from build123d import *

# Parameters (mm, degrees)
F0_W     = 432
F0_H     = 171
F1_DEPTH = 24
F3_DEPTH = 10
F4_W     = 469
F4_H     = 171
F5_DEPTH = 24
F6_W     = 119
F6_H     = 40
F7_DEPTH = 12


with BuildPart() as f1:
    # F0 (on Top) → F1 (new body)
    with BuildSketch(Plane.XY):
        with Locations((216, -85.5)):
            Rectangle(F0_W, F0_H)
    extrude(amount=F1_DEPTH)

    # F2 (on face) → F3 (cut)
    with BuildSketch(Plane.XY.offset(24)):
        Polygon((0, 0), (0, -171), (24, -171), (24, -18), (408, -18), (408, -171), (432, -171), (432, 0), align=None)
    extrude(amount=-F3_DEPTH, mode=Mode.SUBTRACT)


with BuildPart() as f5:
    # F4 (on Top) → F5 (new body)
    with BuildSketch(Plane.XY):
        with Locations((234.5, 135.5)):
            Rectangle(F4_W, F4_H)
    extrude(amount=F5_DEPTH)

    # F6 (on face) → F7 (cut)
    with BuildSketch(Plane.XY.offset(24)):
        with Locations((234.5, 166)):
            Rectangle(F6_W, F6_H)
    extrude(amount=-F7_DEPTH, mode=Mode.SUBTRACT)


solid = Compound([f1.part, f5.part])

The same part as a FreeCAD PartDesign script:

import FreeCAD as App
import Part
import Sketcher
from FreeCAD import Vector


def add_polygon(sketch, points):
    """Adds a closed chain of lines whose ends are joined by coincident constraints."""
    first, n = sketch.GeometryCount, len(points)
    for a, b in zip(points, points[1:] + points[:1]):
        sketch.addGeometry(Part.LineSegment(App.Vector(*a, 0), App.Vector(*b, 0)), False)
    for i in range(n):
        sketch.addConstraint(Sketcher.Constraint("Coincident", first + i, 2, first + (i + 1) % n, 1))

doc = App.newDocument("Part")
body = doc.addObject("PartDesign::Body", "Body")

# Sketch on XY plane
sketch1 = doc.addObject("Sketcher::SketchObject", "Sketch")
body.addObject(sketch1)
sketch1.AttachmentSupport = (doc.XY_Plane, [""])
sketch1.MapMode = "FlatFace"
add_polygon(sketch1, [(0, 0), (0, -171), (432, -171), (432, 0)])  # lines 0-3
sketch1.addConstraint(Sketcher.Constraint("Vertical", 0))
sketch1.addConstraint(Sketcher.Constraint("Horizontal", 1))
sketch1.addConstraint(Sketcher.Constraint("Vertical", 2))
sketch1.addConstraint(Sketcher.Constraint("Horizontal", 3))
sketch1.addConstraint(Sketcher.Constraint("Coincident", 3, 2, -1, 1))
sketch1.addConstraint(Sketcher.Constraint("DistanceX", 1, 1, 1, 2, 432.0))
sketch1.addConstraint(Sketcher.Constraint("DistanceY", 0, 2, 0, 1, 171.0))
pad1 = doc.addObject("PartDesign::Pad", "Pad")
body.addObject(pad1)
pad1.Profile = sketch1
pad1.Length = 24

# Sketch on XY plane
sketch2 = doc.addObject("Sketcher::SketchObject", "Sketch001")
body.addObject(sketch2)
sketch2.AttachmentSupport = (doc.XY_Plane, [""])
sketch2.MapMode = "FlatFace"
sketch2.AttachmentOffset = App.Placement(Vector(0, 0, 24), App.Rotation())
add_polygon(sketch2, [(0, 0), (0, -171), (24, -171), (24, -18), (408, -18), (408, -171), (432, -171), (432, 0)])  # lines 0-7
sketch2.addConstraint(Sketcher.Constraint("Vertical", 0))
sketch2.addConstraint(Sketcher.Constraint("Horizontal", 1))
sketch2.addConstraint(Sketcher.Constraint("Vertical", 2))
sketch2.addConstraint(Sketcher.Constraint("Horizontal", 3))
sketch2.addConstraint(Sketcher.Constraint("Vertical", 4))
sketch2.addConstraint(Sketcher.Constraint("Horizontal", 5))
sketch2.addConstraint(Sketcher.Constraint("Vertical", 6))
sketch2.addConstraint(Sketcher.Constraint("Horizontal", 7))
sketch2.addConstraint(Sketcher.Constraint("Coincident", 7, 2, -1, 1))
sketch2.addConstraint(Sketcher.Constraint("Horizontal", 1, 2, 4, 2))
sketch2.addConstraint(Sketcher.Constraint("Equal", 1, 5))
sketch2.addConstraint(Sketcher.Constraint("DistanceX", 1, 1, 1, 2, 24.0))
sketch2.addConstraint(Sketcher.Constraint("DistanceX", 3, 1, 3, 2, 384.0))
sketch2.addConstraint(Sketcher.Constraint("DistanceY", 0, 2, 0, 1, 171.0))
sketch2.addConstraint(Sketcher.Constraint("DistanceY", 2, 1, 2, 2, 153.0))
pocket1 = doc.addObject("PartDesign::Pocket", "Pocket")
body.addObject(pocket1)
pocket1.Profile = sketch2
pocket1.Length = 10
body2 = doc.addObject("PartDesign::Body", "Body001")

# Sketch on XY plane
sketch3 = doc.addObject("Sketcher::SketchObject", "Sketch002")
body2.addObject(sketch3)
sketch3.AttachmentSupport = (doc.getObject("XY_Plane001"), [""])
sketch3.MapMode = "FlatFace"
add_polygon(sketch3, [(0, 221), (0, 50), (469, 50), (469, 221)])  # lines 0-3
sketch3.addConstraint(Sketcher.Constraint("Vertical", 0))
sketch3.addConstraint(Sketcher.Constraint("Horizontal", 1))
sketch3.addConstraint(Sketcher.Constraint("Vertical", 2))
sketch3.addConstraint(Sketcher.Constraint("Horizontal", 3))
sketch3.addConstraint(Sketcher.Constraint("PointOnObject", 0, 2, -2))
sketch3.addConstraint(Sketcher.Constraint("DistanceX", 1, 1, 1, 2, 469.0))
sketch3.addConstraint(Sketcher.Constraint("DistanceY", 0, 2, 0, 1, 171.0))
sketch3.addConstraint(Sketcher.Constraint("DistanceY", -1, 1, 0, 2, 50.0))
pad2 = doc.addObject("PartDesign::Pad", "Pad001")
body2.addObject(pad2)
pad2.Profile = sketch3
pad2.Length = 24

# Sketch on XY plane
sketch4 = doc.addObject("Sketcher::SketchObject", "Sketch003")
body2.addObject(sketch4)
sketch4.AttachmentSupport = (doc.getObject("XY_Plane001"), [""])
sketch4.MapMode = "FlatFace"
sketch4.AttachmentOffset = App.Placement(Vector(0, 0, 24), App.Rotation())
add_polygon(sketch4, [(175, 186), (175, 146), (294, 146), (294, 186)])  # lines 0-3
sketch4.addConstraint(Sketcher.Constraint("Vertical", 0))
sketch4.addConstraint(Sketcher.Constraint("Horizontal", 1))
sketch4.addConstraint(Sketcher.Constraint("Vertical", 2))
sketch4.addConstraint(Sketcher.Constraint("Horizontal", 3))
sketch4.addConstraint(Sketcher.Constraint("DistanceX", 1, 1, 1, 2, 119.0))
sketch4.addConstraint(Sketcher.Constraint("DistanceY", 0, 2, 0, 1, 40.0))
sketch4.addConstraint(Sketcher.Constraint("DistanceX", -1, 1, 0, 2, 175.0))
sketch4.addConstraint(Sketcher.Constraint("DistanceY", -1, 1, 0, 2, 146.0))
pocket2 = doc.addObject("PartDesign::Pocket", "Pocket001")
body2.addObject(pocket2)
pocket2.Profile = sketch4
pocket2.Length = 12

doc.recompute()
